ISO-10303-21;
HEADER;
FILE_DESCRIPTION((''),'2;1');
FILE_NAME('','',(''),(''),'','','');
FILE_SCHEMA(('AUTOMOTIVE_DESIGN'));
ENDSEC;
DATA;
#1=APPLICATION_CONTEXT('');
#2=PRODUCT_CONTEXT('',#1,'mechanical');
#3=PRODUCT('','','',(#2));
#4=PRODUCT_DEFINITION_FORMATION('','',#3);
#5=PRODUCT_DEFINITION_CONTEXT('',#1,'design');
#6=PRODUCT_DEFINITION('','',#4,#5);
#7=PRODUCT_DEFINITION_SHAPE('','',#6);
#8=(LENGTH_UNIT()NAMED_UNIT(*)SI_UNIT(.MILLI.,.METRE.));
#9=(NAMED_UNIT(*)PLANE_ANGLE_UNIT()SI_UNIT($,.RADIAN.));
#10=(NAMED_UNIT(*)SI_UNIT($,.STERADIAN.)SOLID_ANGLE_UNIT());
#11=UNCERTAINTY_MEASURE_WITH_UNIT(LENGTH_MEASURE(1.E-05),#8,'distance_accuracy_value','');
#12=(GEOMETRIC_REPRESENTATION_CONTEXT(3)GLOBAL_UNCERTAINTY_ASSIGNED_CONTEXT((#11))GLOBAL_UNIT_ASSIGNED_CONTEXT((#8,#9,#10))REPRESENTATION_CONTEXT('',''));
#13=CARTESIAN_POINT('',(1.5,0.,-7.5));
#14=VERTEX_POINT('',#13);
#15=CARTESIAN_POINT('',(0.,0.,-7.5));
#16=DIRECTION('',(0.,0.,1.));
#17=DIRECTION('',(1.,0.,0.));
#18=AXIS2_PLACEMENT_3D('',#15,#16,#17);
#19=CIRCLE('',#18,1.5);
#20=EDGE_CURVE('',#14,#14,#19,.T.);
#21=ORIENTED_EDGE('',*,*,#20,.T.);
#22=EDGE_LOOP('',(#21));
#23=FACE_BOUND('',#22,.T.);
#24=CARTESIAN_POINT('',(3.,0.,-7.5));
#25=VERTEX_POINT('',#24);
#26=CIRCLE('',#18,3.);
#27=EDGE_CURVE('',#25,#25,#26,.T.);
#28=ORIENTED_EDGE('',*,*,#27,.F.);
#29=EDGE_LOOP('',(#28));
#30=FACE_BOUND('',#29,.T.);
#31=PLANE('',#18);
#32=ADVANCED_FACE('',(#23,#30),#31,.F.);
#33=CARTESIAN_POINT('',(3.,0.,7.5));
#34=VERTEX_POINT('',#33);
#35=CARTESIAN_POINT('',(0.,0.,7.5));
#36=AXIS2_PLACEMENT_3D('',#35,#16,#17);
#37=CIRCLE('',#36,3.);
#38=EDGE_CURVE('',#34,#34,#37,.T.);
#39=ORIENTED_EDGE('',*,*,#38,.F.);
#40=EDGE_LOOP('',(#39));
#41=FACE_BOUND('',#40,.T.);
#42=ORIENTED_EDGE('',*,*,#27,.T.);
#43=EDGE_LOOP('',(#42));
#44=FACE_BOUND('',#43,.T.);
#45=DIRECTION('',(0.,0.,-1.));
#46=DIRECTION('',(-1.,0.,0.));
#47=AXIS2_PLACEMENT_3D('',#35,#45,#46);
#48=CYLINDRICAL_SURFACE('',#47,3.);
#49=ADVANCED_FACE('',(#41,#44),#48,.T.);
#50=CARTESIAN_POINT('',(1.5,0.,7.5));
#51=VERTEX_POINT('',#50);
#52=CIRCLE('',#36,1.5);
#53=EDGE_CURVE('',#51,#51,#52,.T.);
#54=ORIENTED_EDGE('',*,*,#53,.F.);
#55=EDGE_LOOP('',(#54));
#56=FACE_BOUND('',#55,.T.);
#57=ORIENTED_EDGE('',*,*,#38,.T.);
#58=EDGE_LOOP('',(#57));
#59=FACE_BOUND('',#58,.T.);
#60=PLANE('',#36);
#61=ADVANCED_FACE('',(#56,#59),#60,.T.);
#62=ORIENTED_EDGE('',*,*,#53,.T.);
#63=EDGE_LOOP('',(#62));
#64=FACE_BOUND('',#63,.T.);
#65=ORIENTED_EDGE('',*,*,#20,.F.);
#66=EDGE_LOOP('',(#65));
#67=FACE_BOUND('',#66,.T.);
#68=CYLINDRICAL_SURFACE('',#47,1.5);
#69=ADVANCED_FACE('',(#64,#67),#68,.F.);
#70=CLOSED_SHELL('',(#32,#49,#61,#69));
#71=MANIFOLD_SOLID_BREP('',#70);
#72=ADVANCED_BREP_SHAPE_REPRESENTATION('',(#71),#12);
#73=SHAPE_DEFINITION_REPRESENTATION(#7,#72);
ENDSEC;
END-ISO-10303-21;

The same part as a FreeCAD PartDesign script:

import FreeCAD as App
import Part
import Sketcher
Q = App.Units.Quantity

doc = App.newDocument("Part")
body = doc.addObject("PartDesign::Body", "Body")

# Sketch on XY plane
sketch1 = body.newObject("Sketcher::SketchObject", "Sketch")
sketch1.AttachmentSupport = (doc.getObject("XY_Plane"), [""])
sketch1.MapMode = "FlatFace"
sketch1.addGeometry([
    Part.Circle(App.Vector(0, 0, 0), App.Vector(0, 0, 1), 3),
    Part.Circle(App.Vector(0, 0, 0), App.Vector(0, 0, 1), 1.5),
], False)
sketch1.addConstraint([
    Sketcher.Constraint("Coincident", 0, 3, -1, 1),
    Sketcher.Constraint("Coincident", 1, 3, -1, 1),
    Sketcher.Constraint("Diameter", 0, Q("6 mm")),
    Sketcher.Constraint("Diameter", 1, Q("3 mm")),
])
pad1 = body.newObject("PartDesign::Pad", "Pad")
pad1.Profile = sketch1
pad1.Length = 15
pad1.Midplane = True

doc.recompute()
